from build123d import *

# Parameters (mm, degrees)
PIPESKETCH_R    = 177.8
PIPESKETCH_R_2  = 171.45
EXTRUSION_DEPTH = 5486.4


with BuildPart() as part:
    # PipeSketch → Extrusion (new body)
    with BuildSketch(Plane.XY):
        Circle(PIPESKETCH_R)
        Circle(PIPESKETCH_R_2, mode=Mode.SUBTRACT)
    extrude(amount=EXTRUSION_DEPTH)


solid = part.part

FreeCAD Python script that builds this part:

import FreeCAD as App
import Part
import Sketcher
from FreeCAD import Vector
Q = App.Units.Quantity

doc = App.newDocument("Part")
params = doc.addObject("Spreadsheet::Sheet", "Params")
for row, (alias, value) in enumerate([
    ("sketch1_diameter", "14 in"),
    ("sketch1_diameter2", "13.5 in"),
    ("pad1_length", "216 in"),
], start=1):
    params.set(f"A{row}", alias)
    params.set(f"B{row}", "=" + value)
    params.setAlias(f"B{row}", alias)

body = doc.addObject("PartDesign::Body", "Body")

sketch1 = body.newObject("Sketcher::SketchObject", "Sketch")
sketch1.AttachmentSupport = (doc.getObject("XY_Plane"), [""])
sketch1.MapMode = "FlatFace"
sketch1.addGeometry(Part.Circle(Vector(0, 0, 0), Vector(0, 0, 1), 178), False)
sketch1.addGeometry(Part.Circle(Vector(0, 0, 0), Vector(0, 0, 1), 171), False)
sketch1.addConstraint(Sketcher.Constraint("Coincident", 0, 3, -1, 1))
sketch1.addConstraint(Sketcher.Constraint("Coincident", 1, 3, -1, 1))
sketch1.addConstraint(Sketcher.Constraint("Diameter", 0, Q("14 in")))
sketch1.addConstraint(Sketcher.Constraint("Diameter", 1, Q("13.5 in")))
sketch1.setExpression("Constraints[2]", "Params.sketch1_diameter")
sketch1.setExpression("Constraints[3]", "Params.sketch1_diameter2")
pad1 = body.newObject("PartDesign::Pad", "Pad")
pad1.Profile = sketch1
pad1.setExpression("Length", "Params.pad1_length")

doc.recompute()
